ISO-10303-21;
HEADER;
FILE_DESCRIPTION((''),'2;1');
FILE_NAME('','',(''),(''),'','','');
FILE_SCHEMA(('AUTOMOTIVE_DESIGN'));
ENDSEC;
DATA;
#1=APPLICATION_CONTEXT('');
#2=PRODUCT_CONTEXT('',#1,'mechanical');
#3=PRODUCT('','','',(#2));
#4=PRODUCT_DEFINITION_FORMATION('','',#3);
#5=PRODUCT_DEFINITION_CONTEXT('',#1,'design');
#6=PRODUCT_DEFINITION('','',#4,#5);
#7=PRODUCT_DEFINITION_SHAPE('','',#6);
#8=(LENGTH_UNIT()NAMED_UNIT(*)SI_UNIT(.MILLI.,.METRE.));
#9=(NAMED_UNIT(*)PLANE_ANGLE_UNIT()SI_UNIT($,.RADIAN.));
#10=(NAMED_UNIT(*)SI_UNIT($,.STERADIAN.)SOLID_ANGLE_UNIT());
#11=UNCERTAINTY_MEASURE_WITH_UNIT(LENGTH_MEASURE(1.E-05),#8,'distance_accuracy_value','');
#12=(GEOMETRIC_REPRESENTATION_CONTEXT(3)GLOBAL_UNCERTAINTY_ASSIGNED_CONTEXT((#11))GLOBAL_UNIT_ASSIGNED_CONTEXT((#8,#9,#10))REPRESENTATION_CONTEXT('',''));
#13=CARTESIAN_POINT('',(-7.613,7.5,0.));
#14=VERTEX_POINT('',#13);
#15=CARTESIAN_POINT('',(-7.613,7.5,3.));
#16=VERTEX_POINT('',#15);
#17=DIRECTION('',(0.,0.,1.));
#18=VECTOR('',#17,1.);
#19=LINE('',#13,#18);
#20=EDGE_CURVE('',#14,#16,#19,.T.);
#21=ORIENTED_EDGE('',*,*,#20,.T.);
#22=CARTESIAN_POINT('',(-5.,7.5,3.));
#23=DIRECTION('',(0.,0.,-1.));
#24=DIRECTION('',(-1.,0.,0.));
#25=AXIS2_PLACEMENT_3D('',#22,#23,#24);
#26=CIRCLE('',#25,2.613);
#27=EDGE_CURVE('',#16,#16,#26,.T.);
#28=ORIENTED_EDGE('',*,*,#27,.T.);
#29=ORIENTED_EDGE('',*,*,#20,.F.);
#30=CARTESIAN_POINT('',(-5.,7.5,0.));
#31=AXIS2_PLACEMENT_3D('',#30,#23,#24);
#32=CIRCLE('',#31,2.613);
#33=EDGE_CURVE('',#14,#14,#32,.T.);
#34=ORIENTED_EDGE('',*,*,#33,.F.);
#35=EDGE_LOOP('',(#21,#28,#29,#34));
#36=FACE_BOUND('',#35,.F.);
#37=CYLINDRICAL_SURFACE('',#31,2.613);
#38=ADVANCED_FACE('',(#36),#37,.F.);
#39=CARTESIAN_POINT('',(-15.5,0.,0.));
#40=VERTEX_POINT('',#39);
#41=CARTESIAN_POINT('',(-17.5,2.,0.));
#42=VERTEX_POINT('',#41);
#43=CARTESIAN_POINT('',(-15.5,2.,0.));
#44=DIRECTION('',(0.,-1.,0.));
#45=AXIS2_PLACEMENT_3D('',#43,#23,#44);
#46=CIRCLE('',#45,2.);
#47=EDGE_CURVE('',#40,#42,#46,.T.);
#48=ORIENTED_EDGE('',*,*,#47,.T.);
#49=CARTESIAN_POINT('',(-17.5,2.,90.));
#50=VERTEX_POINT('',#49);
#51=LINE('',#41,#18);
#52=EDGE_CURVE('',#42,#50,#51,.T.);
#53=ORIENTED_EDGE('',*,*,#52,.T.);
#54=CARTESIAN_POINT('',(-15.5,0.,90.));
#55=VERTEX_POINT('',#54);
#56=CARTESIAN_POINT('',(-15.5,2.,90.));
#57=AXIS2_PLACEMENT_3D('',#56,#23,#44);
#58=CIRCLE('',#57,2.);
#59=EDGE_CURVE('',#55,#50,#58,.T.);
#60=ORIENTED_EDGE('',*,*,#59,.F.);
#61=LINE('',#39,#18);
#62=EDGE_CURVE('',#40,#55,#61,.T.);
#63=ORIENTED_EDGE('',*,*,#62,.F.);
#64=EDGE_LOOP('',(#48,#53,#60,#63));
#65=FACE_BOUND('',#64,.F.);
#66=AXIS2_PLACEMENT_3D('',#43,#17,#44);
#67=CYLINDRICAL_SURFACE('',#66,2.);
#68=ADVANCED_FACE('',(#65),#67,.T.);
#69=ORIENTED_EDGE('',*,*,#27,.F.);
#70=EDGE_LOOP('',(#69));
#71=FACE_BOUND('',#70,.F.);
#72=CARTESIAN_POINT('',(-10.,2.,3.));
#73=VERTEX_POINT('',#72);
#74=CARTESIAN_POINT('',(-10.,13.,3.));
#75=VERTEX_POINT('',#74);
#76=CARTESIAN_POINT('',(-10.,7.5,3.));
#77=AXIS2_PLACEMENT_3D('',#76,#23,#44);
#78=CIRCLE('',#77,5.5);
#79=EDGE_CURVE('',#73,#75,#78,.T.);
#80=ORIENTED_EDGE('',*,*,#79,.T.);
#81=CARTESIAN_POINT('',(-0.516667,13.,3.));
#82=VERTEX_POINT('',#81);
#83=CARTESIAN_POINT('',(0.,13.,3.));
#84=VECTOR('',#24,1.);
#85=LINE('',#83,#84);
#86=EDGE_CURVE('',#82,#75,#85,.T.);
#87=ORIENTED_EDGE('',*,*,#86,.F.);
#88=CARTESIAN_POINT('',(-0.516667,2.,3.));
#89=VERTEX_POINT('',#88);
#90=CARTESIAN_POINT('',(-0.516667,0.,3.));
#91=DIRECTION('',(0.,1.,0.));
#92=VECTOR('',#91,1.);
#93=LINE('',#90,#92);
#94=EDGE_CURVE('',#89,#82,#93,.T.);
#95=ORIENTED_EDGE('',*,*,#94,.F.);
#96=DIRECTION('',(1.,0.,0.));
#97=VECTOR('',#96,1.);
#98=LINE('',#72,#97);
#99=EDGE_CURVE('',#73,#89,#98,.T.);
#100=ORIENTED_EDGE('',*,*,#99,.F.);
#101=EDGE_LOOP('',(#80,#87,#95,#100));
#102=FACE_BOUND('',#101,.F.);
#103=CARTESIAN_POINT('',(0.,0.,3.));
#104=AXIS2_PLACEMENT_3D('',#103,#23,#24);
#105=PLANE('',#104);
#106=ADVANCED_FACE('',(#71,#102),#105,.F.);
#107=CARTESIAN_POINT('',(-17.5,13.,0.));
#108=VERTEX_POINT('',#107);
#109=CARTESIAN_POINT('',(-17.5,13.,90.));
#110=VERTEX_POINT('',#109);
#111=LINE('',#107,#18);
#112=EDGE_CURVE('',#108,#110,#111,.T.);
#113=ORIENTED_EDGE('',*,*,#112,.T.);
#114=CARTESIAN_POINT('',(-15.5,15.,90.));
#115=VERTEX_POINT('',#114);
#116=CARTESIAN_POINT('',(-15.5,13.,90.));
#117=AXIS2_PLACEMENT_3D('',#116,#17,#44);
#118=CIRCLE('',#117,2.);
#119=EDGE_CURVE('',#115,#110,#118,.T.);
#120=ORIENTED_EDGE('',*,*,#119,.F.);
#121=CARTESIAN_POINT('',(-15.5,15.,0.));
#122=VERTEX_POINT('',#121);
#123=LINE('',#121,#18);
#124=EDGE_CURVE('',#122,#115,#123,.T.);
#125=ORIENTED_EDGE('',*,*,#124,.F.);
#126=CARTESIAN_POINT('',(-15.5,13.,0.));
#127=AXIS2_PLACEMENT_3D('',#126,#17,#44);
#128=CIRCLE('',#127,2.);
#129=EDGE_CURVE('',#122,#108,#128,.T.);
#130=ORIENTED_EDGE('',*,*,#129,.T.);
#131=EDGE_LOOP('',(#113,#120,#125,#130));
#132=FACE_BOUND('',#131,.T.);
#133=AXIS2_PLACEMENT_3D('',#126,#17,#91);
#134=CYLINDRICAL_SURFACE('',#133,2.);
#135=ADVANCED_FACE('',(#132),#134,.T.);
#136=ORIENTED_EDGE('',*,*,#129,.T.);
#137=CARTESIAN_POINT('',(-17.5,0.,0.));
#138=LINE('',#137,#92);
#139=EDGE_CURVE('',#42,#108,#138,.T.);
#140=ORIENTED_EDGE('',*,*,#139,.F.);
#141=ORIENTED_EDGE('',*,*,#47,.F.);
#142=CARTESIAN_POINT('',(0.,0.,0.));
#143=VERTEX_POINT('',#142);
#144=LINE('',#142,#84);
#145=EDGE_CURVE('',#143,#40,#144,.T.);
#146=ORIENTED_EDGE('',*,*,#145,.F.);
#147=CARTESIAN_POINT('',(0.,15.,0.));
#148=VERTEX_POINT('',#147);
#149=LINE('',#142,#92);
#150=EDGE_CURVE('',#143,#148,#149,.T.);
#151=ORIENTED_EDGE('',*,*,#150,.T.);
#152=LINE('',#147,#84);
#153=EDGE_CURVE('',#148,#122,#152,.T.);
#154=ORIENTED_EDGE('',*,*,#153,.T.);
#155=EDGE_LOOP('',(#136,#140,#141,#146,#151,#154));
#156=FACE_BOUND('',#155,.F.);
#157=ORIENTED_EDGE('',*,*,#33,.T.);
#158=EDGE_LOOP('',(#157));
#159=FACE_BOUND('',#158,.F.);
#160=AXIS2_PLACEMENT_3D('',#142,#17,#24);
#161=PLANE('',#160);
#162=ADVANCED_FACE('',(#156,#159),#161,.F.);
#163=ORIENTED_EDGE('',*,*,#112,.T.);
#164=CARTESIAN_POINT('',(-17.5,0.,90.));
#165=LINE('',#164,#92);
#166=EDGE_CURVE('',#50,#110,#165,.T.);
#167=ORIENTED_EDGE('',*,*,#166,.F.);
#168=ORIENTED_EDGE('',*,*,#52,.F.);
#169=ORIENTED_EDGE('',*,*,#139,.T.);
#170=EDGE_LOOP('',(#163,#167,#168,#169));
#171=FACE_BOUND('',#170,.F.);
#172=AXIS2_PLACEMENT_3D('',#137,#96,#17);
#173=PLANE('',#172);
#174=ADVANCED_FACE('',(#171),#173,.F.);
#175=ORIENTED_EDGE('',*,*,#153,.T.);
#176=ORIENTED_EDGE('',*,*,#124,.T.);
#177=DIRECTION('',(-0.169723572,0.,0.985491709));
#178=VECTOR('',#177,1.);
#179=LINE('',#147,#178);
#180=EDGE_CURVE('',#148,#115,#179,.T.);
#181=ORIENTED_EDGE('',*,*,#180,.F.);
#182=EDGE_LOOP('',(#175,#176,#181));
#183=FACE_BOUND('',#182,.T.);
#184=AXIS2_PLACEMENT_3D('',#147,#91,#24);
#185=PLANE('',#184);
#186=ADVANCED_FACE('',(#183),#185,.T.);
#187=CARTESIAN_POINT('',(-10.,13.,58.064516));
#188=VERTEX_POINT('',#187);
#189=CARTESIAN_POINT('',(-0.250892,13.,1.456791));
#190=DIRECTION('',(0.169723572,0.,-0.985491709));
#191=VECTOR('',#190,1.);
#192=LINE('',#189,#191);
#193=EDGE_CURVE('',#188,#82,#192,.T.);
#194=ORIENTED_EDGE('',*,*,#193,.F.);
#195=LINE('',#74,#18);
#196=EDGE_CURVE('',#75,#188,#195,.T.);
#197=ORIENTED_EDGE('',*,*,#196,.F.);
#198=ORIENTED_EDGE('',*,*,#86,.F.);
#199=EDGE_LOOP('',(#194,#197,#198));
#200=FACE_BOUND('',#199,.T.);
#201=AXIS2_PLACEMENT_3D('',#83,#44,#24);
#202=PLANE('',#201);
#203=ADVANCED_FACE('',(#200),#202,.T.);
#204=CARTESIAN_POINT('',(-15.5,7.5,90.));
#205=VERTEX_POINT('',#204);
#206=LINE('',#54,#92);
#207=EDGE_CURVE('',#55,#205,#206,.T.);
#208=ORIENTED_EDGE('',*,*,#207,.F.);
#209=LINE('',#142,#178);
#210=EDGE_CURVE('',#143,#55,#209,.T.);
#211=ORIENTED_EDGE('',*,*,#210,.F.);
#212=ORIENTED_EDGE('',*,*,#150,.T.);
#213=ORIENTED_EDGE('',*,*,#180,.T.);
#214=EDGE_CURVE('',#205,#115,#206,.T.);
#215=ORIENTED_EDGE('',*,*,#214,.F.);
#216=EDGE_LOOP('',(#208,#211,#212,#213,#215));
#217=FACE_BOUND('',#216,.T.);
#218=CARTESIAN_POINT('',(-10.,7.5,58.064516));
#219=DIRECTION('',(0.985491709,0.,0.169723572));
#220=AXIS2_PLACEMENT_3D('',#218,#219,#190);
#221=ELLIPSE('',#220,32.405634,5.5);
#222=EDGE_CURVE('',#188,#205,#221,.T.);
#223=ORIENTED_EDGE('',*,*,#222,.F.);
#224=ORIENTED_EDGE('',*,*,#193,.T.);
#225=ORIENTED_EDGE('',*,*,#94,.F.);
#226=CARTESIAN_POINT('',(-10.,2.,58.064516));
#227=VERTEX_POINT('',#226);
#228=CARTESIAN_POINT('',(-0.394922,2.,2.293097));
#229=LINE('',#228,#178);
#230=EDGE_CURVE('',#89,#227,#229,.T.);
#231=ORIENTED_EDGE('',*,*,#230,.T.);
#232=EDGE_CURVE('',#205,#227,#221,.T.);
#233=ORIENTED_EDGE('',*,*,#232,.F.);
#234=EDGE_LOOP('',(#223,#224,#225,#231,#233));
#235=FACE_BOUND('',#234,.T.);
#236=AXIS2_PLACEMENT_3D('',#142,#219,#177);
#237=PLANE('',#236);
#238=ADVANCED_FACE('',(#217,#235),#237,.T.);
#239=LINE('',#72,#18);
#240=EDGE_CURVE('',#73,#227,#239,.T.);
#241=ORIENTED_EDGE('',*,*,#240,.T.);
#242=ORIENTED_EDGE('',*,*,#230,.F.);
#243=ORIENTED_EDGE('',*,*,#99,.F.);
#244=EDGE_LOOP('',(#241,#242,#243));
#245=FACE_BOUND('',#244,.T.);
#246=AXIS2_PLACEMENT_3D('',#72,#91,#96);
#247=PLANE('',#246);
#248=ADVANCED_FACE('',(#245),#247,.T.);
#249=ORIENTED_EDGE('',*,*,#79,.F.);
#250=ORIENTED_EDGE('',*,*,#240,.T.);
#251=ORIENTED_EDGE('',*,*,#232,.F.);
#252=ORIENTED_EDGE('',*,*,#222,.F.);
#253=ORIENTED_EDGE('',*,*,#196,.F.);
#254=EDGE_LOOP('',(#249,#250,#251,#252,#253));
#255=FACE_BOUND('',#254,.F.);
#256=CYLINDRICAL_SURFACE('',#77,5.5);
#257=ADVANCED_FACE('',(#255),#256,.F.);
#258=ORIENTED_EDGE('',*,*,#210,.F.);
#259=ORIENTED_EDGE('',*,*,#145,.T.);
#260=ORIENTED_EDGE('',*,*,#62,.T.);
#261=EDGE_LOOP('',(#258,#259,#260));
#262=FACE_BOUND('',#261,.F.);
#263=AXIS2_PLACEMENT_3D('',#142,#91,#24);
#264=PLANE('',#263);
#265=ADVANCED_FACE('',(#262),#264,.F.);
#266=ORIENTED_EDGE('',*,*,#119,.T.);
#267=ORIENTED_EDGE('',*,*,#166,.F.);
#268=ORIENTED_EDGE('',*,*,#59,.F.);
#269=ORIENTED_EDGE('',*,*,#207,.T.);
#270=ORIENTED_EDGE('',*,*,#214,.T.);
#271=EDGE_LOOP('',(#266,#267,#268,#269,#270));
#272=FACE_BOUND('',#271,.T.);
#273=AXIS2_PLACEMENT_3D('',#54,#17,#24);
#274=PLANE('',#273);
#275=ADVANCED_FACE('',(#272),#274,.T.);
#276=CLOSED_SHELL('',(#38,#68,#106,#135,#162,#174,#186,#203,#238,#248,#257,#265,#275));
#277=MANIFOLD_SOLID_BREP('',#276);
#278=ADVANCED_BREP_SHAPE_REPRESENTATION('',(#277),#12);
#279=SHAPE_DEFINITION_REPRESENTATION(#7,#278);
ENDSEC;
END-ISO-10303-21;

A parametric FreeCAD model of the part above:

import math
import FreeCAD as App
import Part
import Sketcher
Q = App.Units.Quantity


def edges_at(feature, points):
    """Names of the edges that pass closest to the given points."""
    edges = feature.Shape.Edges
    near = lambda p: min(range(len(edges)), key=lambda i: edges[i].distToShape(Part.Vertex(*p))[0])
    return sorted({f"Edge{near(p) + 1}" for p in points})


def add_polygon(sketch, points):
    """Adds a closed chain of lines whose ends are joined by coincident constraints."""
    first, n = sketch.GeometryCount, len(points)
    for a, b in zip(points, points[1:] + points[:1]):
        sketch.addGeometry(Part.LineSegment(App.Vector(*a, 0), App.Vector(*b, 0)), False)
    for i in range(n):
        sketch.addConstraint(Sketcher.Constraint("Coincident", first + i, 2, first + (i + 1) % n, 1))

doc = App.newDocument("Part")
body = doc.addObject("PartDesign::Body", "Body")

sketch1 = body.newObject("Sketcher::SketchObject", "Sketch")
sketch1.AttachmentSupport = (doc.getObject("XZ_Plane"), [""])
sketch1.MapMode = "FlatFace"
add_polygon(sketch1, [(-15.5, 90), (0, 0), (-17.5, 0), (-17.5, 90)])
sketch1.addConstraint([
    Sketcher.Constraint("Horizontal", 1),
    Sketcher.Constraint("Vertical", 2),
    Sketcher.Constraint("Horizontal", 3),
    Sketcher.Constraint("Coincident", 0, 2, -1, 1),
    Sketcher.Constraint("DistanceX", 3, 1, 3, 2, Q("2 mm")),
    Sketcher.Constraint("DistanceY", 2, 1, 2, 2, Q("90 mm")),
    Sketcher.Constraint("DistanceX", 1, 2, 1, 1, Q("17.5 mm")),
])
pad1 = body.newObject("PartDesign::Pad", "Pad")
pad1.Profile = sketch1
pad1.Length = 15
pad1.Reversed = True

sketch2 = body.newObject("Sketcher::SketchObject", "Sketch001")
sketch2.AttachmentSupport = (doc.getObject("XY_Plane"), [""])
sketch2.MapMode = "FlatFace"
sketch2.AttachmentOffset = App.Placement(App.Vector(0, 0, 3), App.Rotation())
sketch2.addGeometry([
    Part.LineSegment(App.Vector(-10, 13, 0), App.Vector(0, 13, 0)),
    Part.LineSegment(App.Vector(0, 13, 0), App.Vector(0, 2, 0)),
    Part.LineSegment(App.Vector(0, 2, 0), App.Vector(-10, 2, 0)),
    Part.ArcOfCircle(Part.Circle(App.Vector(-10, 8, 0), App.Vector(0, 0, 1), 6), math.radians(90), math.radians(270)),
], False)
sketch2.addConstraint([
    Sketcher.Constraint("Coincident", 0, 2, 1, 1),
    Sketcher.Constraint("Coincident", 1, 2, 2, 1),
    Sketcher.Constraint("Tangent", 2, 2, 3, 2),
    Sketcher.Constraint("Tangent", 3, 1, 0, 1),
    Sketcher.Constraint("Horizontal", 0),
    Sketcher.Constraint("Vertical", 1),
    Sketcher.Constraint("Horizontal", 2),
    Sketcher.Constraint("PointOnObject", 0, 2, -2),
    Sketcher.Constraint("DistanceY", -1, 1, 1, 2, Q("2 mm")),
    Sketcher.Constraint("Radius", 3, Q("5.5 mm")),
    Sketcher.Constraint("DistanceX", 0, 1, 0, 2, Q("10 mm")),
])
pocket1 = body.newObject("PartDesign::Pocket", "Pocket")
pocket1.Profile = sketch2
pocket1.Length = 87
pocket1.Reversed = True

sketch3 = body.newObject("Sketcher::SketchObject", "Sketch002")
sketch3.AttachmentSupport = (doc.getObject("XY_Plane"), [""])
sketch3.MapMode = "FlatFace"
sketch3.addGeometry(Part.Circle(App.Vector(-5, 7.5, 0), App.Vector(0, 0, 1), 2.6), False)
sketch3.addConstraint([
    Sketcher.Constraint("Diameter", 0, Q("5.226 mm")),
    Sketcher.Constraint("DistanceX", 0, 3, -1, 1, Q("5 mm")),
    Sketcher.Constraint("DistanceY", -1, 1, 0, 3, Q("7.5 mm")),
])
pocket2 = body.newObject("PartDesign::Pocket", "Pocket001")
pocket2.Profile = sketch3
pocket2.Length = 10
pocket2.Reversed = True
doc.recompute()

fillet = body.newObject("PartDesign::Fillet", "Fillet")
fillet.Base = (pocket2, edges_at(pocket2, [(-17.5, 0, 45), (-17.5, 15, 45)]))
fillet.Radius = 2

doc.recompute()
